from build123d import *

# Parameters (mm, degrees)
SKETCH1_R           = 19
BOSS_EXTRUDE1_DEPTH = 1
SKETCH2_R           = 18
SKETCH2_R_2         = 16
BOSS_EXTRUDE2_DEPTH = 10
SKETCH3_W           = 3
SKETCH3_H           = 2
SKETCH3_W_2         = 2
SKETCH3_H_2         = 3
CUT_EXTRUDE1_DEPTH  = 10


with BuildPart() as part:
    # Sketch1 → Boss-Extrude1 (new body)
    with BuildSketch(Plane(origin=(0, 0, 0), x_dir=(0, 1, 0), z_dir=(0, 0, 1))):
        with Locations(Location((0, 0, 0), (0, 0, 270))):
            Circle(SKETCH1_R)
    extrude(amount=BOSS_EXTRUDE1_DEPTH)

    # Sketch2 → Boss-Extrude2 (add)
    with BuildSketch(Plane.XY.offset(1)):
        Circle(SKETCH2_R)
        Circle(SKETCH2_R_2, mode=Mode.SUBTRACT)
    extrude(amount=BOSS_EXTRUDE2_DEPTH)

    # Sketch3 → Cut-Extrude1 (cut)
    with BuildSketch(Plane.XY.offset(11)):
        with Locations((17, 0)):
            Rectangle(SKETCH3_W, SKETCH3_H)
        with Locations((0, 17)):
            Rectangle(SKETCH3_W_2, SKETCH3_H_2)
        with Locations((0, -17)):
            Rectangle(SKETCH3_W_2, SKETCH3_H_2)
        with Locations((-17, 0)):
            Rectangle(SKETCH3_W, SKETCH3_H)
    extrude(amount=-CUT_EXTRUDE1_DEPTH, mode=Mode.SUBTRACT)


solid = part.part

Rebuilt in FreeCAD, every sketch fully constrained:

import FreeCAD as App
import Part
import Sketcher

V = App.Vector


def add_polygon(sketch, points):
    """Adds a closed chain of lines whose ends are joined by coincident constraints."""
    first, n = sketch.GeometryCount, len(points)
    for a, b in zip(points, points[1:] + points[:1]):
        sketch.addGeometry(Part.LineSegment(App.Vector(*a, 0), App.Vector(*b, 0)), False)
    for i in range(n):
        sketch.addConstraint(Sketcher.Constraint("Coincident", first + i, 2, first + (i + 1) % n, 1))

doc = App.newDocument("Part")
body = doc.addObject("PartDesign::Body", "Body")

sketch1 = body.newObject("Sketcher::SketchObject", "Sketch")
sketch1.AttachmentSupport = (doc.getObject("XY_Plane"), [""])
sketch1.MapMode = "FlatFace"
sketch1.addGeometry(Part.Circle(V(0, 0, 0), V(0, 0, 1), 19), False)
sketch1.addConstraint([
    Sketcher.Constraint("Coincident", 0, 3, -1, 1),
    Sketcher.Constraint("Diameter", 0, 38.0),
])
pad1 = body.newObject("PartDesign::Pad", "Pad")
pad1.Profile = sketch1
pad1.Length = 1

sketch2 = body.newObject("Sketcher::SketchObject", "Sketch001")
sketch2.AttachmentSupport = (doc.getObject("XY_Plane"), [""])
sketch2.MapMode = "FlatFace"
sketch2.AttachmentOffset = App.Placement(V(0, 0, 1), App.Rotation())
sketch2.addGeometry([
    Part.Circle(V(0, 0, 0), V(0, 0, 1), 18),
    Part.Circle(V(0, 0, 0), V(0, 0, 1), 16),
], False)
sketch2.addConstraint([
    Sketcher.Constraint("Coincident", 0, 3, -1, 1),
    Sketcher.Constraint("Coincident", 1, 3, -1, 1),
    Sketcher.Constraint("Diameter", 0, 36.0),
    Sketcher.Constraint("Diameter", 1, 32.0),
])
pad2 = body.newObject("PartDesign::Pad", "Pad001")
pad2.Profile = sketch2
pad2.Length = 10

sketch3 = body.newObject("Sketcher::SketchObject", "Sketch002")
sketch3.AttachmentSupport = (doc.getObject("XY_Plane"), [""])
sketch3.MapMode = "FlatFace"
sketch3.AttachmentOffset = App.Placement(V(0, 0, 11), App.Rotation())
add_polygon(sketch3, [(15.5, 1), (15.5, -1), (18.5, -1), (18.5, 1)])
add_polygon(sketch3, [(-1, 18.5), (-1, 15.5), (1, 15.5), (1, 18.5)])
add_polygon(sketch3, [(-1, -15.5), (-1, -18.5), (1, -18.5), (1, -15.5)])
add_polygon(sketch3, [(-18.5, 1), (-18.5, -1), (-15.5, -1), (-15.5, 1)])
sketch3.addConstraint([
    Sketcher.Constraint("Vertical", 0),
    Sketcher.Constraint("Horizontal", 1),
    Sketcher.Constraint("Vertical", 2),
    Sketcher.Constraint("Horizontal", 3),
    Sketcher.Constraint("Vertical", 4),
    Sketcher.Constraint("Horizontal", 5),
    Sketcher.Constraint("Vertical", 6),
    Sketcher.Constraint("Horizontal", 7),
    Sketcher.Constraint("Vertical", 8),
    Sketcher.Constraint("Horizontal", 9),
    Sketcher.Constraint("Vertical", 10),
    Sketcher.Constraint("Horizontal", 11),
    Sketcher.Constraint("Vertical", 12),
    Sketcher.Constraint("Horizontal", 13),
    Sketcher.Constraint("Vertical", 14),
    Sketcher.Constraint("Horizontal", 15),
    Sketcher.Constraint("Symmetric", 6, 2, 8, 2, -1, 1),
    Sketcher.Constraint("Symmetric", 4, 2, 10, 2, -1, 1),
    Sketcher.Constraint("Symmetric", 2, 2, 12, 2, -1, 1),
    Sketcher.Constraint("Symmetric", 0, 2, 14, 2, -1, 1),
    Sketcher.Constraint("Horizontal", 1, 2, 12, 2),
    Sketcher.Constraint("Vertical", 7, 2, 8, 2),
    Sketcher.Constraint("Equal", 11, 0),
    Sketcher.Constraint("Equal", 15, 4),
    Sketcher.Constraint("DistanceX", 1, 1, 1, 2, 3.0),
    Sketcher.Constraint("DistanceX", 5, 1, 5, 2, 2.0),
    Sketcher.Constraint("DistanceY", 8, 2, 4, 2, 34.0),
    Sketcher.Constraint("DistanceX", -1, 1, 0, 2, 15.5),
])
pocket1 = body.newObject("PartDesign::Pocket", "Pocket")
pocket1.Profile = sketch3
pocket1.Length = 10

doc.recompute()
